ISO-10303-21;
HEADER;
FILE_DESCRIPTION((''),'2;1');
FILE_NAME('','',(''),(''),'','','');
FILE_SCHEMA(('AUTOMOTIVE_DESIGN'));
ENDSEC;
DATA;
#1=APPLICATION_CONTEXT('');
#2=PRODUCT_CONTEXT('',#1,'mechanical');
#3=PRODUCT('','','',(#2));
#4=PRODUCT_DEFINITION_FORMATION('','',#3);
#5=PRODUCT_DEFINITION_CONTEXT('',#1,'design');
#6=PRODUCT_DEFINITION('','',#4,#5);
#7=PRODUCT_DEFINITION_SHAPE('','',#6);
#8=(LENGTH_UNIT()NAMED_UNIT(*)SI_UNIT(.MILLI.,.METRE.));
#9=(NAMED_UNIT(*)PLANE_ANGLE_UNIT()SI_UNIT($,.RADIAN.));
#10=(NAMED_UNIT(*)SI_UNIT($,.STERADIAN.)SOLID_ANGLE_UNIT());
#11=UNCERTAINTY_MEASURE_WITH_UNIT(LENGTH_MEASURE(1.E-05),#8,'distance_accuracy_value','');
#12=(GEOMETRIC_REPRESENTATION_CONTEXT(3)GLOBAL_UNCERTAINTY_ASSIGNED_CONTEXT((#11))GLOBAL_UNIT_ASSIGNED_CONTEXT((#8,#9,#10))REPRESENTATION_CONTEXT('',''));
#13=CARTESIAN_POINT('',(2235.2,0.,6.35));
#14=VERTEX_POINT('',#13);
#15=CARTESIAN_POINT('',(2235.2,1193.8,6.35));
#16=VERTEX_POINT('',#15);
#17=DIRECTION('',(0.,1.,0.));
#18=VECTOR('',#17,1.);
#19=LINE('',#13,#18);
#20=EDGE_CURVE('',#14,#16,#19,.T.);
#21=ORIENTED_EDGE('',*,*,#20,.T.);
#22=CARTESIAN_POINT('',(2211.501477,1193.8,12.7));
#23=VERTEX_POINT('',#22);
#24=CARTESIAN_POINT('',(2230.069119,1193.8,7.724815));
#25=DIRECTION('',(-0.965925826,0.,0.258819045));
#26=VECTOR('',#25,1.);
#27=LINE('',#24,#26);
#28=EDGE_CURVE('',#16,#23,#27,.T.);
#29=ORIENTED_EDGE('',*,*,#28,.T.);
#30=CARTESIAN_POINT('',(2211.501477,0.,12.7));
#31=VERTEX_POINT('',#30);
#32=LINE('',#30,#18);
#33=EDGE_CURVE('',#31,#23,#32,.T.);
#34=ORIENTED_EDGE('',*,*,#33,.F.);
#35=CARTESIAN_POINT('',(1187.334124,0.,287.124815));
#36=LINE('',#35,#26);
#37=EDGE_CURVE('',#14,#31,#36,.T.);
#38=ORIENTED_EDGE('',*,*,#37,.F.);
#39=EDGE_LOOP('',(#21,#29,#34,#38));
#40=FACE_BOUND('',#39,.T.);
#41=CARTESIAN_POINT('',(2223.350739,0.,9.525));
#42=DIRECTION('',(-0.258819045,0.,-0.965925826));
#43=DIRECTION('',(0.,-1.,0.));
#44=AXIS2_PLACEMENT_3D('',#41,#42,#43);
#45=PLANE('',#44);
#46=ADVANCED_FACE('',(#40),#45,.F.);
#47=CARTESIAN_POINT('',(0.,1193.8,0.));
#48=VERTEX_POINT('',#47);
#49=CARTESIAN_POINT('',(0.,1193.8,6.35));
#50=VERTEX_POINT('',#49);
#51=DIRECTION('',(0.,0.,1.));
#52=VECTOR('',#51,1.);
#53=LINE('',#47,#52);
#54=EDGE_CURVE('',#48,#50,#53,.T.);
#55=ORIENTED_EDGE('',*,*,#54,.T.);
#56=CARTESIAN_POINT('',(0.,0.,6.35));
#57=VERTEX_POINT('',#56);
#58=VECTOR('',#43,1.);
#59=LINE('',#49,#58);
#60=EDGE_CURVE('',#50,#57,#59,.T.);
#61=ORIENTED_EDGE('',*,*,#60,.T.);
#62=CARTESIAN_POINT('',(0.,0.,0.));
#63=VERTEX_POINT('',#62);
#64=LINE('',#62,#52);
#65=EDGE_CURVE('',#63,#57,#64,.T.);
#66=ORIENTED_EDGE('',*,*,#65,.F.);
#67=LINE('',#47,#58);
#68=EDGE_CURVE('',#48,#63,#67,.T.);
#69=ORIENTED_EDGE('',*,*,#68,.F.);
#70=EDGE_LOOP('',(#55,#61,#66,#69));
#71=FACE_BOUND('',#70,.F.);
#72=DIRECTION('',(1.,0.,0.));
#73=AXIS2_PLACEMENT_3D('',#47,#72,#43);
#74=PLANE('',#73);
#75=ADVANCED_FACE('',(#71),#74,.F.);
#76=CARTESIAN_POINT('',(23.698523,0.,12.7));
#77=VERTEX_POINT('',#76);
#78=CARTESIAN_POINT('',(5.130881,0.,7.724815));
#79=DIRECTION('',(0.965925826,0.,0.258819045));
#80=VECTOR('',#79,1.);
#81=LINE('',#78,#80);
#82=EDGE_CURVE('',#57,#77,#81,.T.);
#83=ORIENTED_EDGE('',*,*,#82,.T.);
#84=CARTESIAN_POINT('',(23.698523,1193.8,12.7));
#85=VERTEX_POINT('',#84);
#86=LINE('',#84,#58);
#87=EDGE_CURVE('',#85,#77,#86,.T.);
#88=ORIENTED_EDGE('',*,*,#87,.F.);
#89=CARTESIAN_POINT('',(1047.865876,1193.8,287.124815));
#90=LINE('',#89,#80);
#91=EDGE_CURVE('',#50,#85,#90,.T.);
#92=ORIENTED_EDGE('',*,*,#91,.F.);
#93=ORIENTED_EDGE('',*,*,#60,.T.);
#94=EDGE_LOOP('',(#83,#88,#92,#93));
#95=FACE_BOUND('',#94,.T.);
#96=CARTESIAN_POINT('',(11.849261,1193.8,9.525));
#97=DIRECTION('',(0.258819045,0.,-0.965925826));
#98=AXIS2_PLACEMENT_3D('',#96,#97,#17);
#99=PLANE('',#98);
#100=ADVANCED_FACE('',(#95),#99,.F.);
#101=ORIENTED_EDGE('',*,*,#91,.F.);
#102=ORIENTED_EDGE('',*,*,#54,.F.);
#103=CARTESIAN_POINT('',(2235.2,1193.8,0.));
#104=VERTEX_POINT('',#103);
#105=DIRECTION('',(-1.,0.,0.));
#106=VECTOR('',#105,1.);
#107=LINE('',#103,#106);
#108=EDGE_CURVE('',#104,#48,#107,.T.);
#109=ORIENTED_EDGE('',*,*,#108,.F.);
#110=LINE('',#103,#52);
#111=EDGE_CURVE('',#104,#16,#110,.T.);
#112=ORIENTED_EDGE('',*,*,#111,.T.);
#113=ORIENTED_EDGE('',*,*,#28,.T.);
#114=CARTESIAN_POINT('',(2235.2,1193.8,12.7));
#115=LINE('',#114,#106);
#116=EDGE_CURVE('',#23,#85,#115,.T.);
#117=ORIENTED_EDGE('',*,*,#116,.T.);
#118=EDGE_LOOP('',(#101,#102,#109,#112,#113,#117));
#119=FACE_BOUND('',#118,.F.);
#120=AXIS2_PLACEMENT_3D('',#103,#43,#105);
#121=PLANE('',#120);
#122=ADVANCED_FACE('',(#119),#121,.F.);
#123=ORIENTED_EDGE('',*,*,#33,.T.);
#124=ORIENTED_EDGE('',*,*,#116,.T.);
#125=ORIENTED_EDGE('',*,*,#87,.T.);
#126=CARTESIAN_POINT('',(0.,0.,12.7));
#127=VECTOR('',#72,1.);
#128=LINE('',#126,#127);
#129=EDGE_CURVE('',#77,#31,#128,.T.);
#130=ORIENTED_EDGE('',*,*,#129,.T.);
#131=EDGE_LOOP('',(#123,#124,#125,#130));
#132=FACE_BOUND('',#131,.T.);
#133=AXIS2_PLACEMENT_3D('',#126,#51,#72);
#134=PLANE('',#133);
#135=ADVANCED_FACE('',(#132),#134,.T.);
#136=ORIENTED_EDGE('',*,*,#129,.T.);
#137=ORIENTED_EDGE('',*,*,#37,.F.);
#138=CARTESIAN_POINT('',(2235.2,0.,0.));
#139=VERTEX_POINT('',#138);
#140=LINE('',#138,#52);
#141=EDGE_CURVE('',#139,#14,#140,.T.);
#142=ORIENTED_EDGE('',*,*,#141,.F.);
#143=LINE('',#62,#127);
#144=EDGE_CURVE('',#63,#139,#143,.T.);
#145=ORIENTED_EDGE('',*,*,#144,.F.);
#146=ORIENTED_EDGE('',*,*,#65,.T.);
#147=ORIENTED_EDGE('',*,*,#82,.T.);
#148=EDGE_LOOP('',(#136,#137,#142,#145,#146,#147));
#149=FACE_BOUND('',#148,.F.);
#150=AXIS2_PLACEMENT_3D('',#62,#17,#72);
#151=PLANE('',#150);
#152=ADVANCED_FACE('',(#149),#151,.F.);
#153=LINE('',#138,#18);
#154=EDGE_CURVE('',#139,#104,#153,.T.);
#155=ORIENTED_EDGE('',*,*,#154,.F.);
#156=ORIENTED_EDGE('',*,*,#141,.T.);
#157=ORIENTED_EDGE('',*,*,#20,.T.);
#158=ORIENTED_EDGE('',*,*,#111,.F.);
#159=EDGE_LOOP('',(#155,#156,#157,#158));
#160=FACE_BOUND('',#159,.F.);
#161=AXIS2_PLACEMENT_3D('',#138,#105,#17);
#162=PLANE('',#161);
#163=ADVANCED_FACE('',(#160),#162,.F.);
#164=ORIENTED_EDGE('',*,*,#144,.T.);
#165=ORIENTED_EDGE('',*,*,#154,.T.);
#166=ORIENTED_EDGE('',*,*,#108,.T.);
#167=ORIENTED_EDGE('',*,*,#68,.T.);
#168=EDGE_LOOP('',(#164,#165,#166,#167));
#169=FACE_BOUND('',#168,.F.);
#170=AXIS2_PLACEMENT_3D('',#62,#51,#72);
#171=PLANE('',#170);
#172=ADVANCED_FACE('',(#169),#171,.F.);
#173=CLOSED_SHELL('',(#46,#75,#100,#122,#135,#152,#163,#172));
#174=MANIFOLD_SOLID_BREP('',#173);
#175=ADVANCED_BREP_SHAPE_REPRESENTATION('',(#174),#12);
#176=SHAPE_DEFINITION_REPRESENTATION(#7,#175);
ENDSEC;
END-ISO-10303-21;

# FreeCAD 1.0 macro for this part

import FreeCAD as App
import Part
import Sketcher
from FreeCAD import Vector
Q = App.Units.Quantity


def edges_at(feature, points):
    """Names of the edges that pass closest to the given points."""
    edges = feature.Shape.Edges
    near = lambda p: min(range(len(edges)), key=lambda i: edges[i].distToShape(Part.Vertex(*p))[0])
    return sorted({f"Edge{near(p) + 1}" for p in points})

doc = App.newDocument("Part")
body = doc.addObject("PartDesign::Body", "Body")

# Sketch on XY plane
sketch1 = body.newObject("Sketcher::SketchObject", "Sketch")
sketch1.AttachmentSupport = (doc.getObject("XY_Plane"), [""])
sketch1.MapMode = "FlatFace"
sketch1.addGeometry([
    Part.LineSegment(Vector(0, 1194, 0), Vector(0, 0, 0)),
    Part.LineSegment(Vector(0, 0, 0), Vector(2235, 0, 0)),
    Part.LineSegment(Vector(2235, 0, 0), Vector(2235, 1194, 0)),
    Part.LineSegment(Vector(2235, 1194, 0), Vector(0, 1194, 0)),
], False)
sketch1.addConstraint([
    Sketcher.Constraint("Coincident", 0, 2, 1, 1),
    Sketcher.Constraint("Coincident", 1, 2, 2, 1),
    Sketcher.Constraint("Coincident", 2, 2, 3, 1),
    Sketcher.Constraint("Coincident", 3, 2, 0, 1),
    Sketcher.Constraint("Vertical", 0),
    Sketcher.Constraint("Horizontal", 1),
    Sketcher.Constraint("Vertical", 2),
    Sketcher.Constraint("Horizontal", 3),
    Sketcher.Constraint("Coincident", 0, 2, -1, 1),
    Sketcher.Constraint("DistanceX", 1, 1, 1, 2, Q("88 in")),
    Sketcher.Constraint("DistanceY", 0, 2, 0, 1, Q("47 in")),
])
pad1 = body.newObject("PartDesign::Pad", "Pad")
pad1.Profile = sketch1
pad1.Length = Q("0.5 in")
doc.recompute()

chamfer = body.newObject("PartDesign::Chamfer", "Chamfer")
chamfer.Base = (pad1, edges_at(pad1, [(2235.2, 596.9, 12.7)]))
chamfer.ChamferType = "Distance and Angle"
chamfer.Size = Q("0.25 in")
chamfer.Angle = 75
doc.recompute()

chamfer2 = body.newObject("PartDesign::Chamfer", "Chamfer001")
chamfer2.Base = (chamfer, edges_at(chamfer, [(0, 596.9, 12.7)]))
chamfer2.ChamferType = "Distance and Angle"
chamfer2.Size = Q("0.25 in")
chamfer2.Angle = 75
chamfer2.FlipDirection = True

doc.recompute()
